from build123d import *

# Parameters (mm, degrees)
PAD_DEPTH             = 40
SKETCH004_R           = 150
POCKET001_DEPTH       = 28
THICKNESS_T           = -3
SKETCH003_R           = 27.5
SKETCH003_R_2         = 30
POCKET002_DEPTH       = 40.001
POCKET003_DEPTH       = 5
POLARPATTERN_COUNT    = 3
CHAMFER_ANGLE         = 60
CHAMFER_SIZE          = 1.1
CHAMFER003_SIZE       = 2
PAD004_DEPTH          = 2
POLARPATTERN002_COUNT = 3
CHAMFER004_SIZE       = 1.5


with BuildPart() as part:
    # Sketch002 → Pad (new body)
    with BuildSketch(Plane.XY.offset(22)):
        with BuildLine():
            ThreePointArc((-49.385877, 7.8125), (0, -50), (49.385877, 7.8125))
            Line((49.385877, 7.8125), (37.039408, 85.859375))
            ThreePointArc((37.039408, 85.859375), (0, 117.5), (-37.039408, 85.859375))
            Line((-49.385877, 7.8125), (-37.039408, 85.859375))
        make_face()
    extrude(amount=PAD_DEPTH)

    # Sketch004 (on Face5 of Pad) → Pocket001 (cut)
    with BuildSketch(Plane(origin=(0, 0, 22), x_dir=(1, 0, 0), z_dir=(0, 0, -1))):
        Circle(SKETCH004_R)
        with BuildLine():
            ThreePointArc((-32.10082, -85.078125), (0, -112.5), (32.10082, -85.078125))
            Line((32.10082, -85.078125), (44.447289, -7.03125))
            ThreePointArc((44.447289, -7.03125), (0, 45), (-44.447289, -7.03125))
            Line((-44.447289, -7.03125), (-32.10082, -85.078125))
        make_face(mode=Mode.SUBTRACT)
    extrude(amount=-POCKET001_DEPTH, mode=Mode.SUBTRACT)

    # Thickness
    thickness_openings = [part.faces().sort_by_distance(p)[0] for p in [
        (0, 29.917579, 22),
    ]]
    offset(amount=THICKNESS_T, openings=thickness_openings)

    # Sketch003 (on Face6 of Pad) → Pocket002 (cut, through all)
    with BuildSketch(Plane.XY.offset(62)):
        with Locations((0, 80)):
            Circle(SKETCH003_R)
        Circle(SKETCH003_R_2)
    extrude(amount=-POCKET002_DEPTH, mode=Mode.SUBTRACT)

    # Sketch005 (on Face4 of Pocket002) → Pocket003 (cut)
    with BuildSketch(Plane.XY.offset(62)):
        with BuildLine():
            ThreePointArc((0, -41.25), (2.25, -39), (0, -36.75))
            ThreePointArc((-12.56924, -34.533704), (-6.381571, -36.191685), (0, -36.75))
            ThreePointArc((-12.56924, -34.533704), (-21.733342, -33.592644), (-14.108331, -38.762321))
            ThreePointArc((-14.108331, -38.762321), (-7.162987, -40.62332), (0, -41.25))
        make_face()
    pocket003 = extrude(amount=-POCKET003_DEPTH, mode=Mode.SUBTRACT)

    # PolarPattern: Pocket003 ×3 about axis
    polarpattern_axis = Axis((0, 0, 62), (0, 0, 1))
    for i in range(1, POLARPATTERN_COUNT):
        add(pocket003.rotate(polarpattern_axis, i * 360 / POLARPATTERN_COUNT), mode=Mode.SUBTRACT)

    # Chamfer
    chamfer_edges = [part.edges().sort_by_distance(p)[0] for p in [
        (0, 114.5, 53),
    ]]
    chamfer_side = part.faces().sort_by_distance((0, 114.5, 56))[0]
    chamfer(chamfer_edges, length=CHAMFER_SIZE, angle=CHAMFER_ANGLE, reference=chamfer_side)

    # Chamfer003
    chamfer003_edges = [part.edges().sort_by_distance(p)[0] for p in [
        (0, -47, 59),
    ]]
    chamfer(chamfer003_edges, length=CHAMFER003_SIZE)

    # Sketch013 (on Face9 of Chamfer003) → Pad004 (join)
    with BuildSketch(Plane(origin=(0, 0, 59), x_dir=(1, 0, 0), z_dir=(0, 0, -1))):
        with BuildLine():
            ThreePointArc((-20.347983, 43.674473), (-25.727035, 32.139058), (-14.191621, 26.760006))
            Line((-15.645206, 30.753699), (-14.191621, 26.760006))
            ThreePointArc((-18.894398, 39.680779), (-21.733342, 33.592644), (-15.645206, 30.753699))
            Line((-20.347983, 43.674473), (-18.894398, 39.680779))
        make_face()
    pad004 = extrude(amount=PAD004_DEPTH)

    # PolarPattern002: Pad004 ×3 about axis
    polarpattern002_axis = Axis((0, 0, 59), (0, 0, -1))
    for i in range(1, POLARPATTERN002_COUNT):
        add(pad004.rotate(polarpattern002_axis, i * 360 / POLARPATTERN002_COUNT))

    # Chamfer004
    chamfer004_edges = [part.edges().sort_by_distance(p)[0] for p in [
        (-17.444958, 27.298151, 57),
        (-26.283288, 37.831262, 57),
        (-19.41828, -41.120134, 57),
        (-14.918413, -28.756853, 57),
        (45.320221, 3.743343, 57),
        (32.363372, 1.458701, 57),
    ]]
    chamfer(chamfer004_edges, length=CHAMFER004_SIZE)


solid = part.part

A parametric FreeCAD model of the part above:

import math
import FreeCAD as App
import Part
import Sketcher

V = App.Vector
Q = App.Units.Quantity


def edges_at(feature, points):
    """Names of the edges that pass closest to the given points."""
    edges = feature.Shape.Edges
    near = lambda p: min(range(len(edges)), key=lambda i: edges[i].distToShape(Part.Vertex(*p))[0])
    return sorted({f"Edge{near(p) + 1}" for p in points})


def faces_at(feature, points):
    """Names of the faces that lie closest to the given points."""
    faces = feature.Shape.Faces
    near = lambda p: min(range(len(faces)), key=lambda i: faces[i].distToShape(Part.Vertex(*p))[0])
    return sorted({f"Face{near(p) + 1}" for p in points})

doc = App.newDocument("Part")
body = doc.addObject("PartDesign::Body", "Body")

# Sketch on XY plane
sketch1 = body.newObject("Sketcher::SketchObject", "Sketch")
sketch1.AttachmentSupport = (doc.getObject("XY_Plane"), [""])
sketch1.MapMode = "FlatFace"
sketch1.AttachmentOffset = App.Placement(V(0, 0, 22), App.Rotation())
sketch1.addGeometry([
    Part.ArcOfCircle(Part.Circle(V(0, 0, 0), V(0, 0, 1), 50), math.radians(171), math.radians(369)),
    Part.LineSegment(V(49, 8, 0), V(37, 86, 0)),
    Part.ArcOfCircle(Part.Circle(V(0, 80, 0), V(0, 0, 1), 38), math.radians(9), math.radians(171)),
    Part.LineSegment(V(-37, 86, 0), V(-49, 8, 0)),
], False)
sketch1.addConstraint([
    Sketcher.Constraint("Tangent", 0, 2, 1, 1),
    Sketcher.Constraint("Tangent", 1, 2, 2, 1),
    Sketcher.Constraint("Tangent", 2, 2, 3, 1),
    Sketcher.Constraint("Tangent", 3, 2, 0, 1),
    Sketcher.Constraint("Coincident", 0, 3, -1, 1),
    Sketcher.Constraint("PointOnObject", 2, 3, -2),
    Sketcher.Constraint("Radius", 0, 50.0),
    Sketcher.Constraint("Radius", 2, 37.5),
    Sketcher.Constraint("DistanceY", -1, 1, 2, 3, 80.0),
])
pad1 = body.newObject("PartDesign::Pad", "Pad")
pad1.Profile = sketch1
pad1.Length = 40

# Sketch on XY plane
sketch2 = body.newObject("Sketcher::SketchObject", "Sketch001")
sketch2.AttachmentSupport = (doc.getObject("XY_Plane"), [""])
sketch2.MapMode = "FlatFace"
sketch2.AttachmentOffset = App.Placement(V(0, 0, 22), App.Rotation())
sketch2.addGeometry([
    Part.Circle(V(0, 0, 0), V(0, 0, 1), 150),  # 0
    Part.ArcOfCircle(Part.Circle(V(0, 80, 0), V(0, 0, 1), 32), math.radians(9), math.radians(171)),  # 1
    Part.LineSegment(V(-32, 85, 0), V(-44, 7, 0)),  # 2
    Part.ArcOfCircle(Part.Circle(V(0, 0, 0), V(0, 0, 1), 45), math.radians(171), math.radians(369)),  # 3
    Part.LineSegment(V(44, 7, 0), V(32, 85, 0)),  # 4
], False)
sketch2.addConstraint([
    Sketcher.Constraint("Tangent", 1, 2, 2, 1),
    Sketcher.Constraint("Tangent", 2, 2, 3, 1),
    Sketcher.Constraint("Tangent", 3, 2, 4, 1),
    Sketcher.Constraint("Tangent", 4, 2, 1, 1),
    Sketcher.Constraint("Coincident", 0, 3, -1, 1),
    Sketcher.Constraint("Coincident", 3, 3, -1, 1),
    Sketcher.Constraint("PointOnObject", 1, 3, -2),
    Sketcher.Constraint("Diameter", 0, 300.0),
    Sketcher.Constraint("Radius", 3, 45.0),
    Sketcher.Constraint("Radius", 1, 32.5),
    Sketcher.Constraint("DistanceY", -1, 1, 1, 3, 80.0),
])
pocket1 = body.newObject("PartDesign::Pocket", "Pocket")
pocket1.Profile = sketch2
pocket1.Length = 28
pocket1.Reversed = True
doc.recompute()

thickness = body.newObject("PartDesign::Thickness", "Thickness")
thickness.Base = (pocket1, faces_at(pocket1, [(0, 33.75, 22)]))
thickness.Value = 3
thickness.Reversed = True
thickness.Join = "Arc"

# Sketch on XY plane
sketch3 = body.newObject("Sketcher::SketchObject", "Sketch002")
sketch3.AttachmentSupport = (doc.getObject("XY_Plane"), [""])
sketch3.MapMode = "FlatFace"
sketch3.AttachmentOffset = App.Placement(V(0, 0, 62), App.Rotation())
sketch3.addGeometry([
    Part.Circle(V(0, 80, 0), V(0, 0, 1), 28),
    Part.Circle(V(0, 0, 0), V(0, 0, 1), 30),
], False)
sketch3.addConstraint([
    Sketcher.Constraint("Coincident", 1, 3, -1, 1),
    Sketcher.Constraint("PointOnObject", 0, 3, -2),
    Sketcher.Constraint("Diameter", 0, 55.0),
    Sketcher.Constraint("Diameter", 1, 60.0),
    Sketcher.Constraint("DistanceY", -1, 1, 0, 3, 80.0),
])
pocket2 = body.newObject("PartDesign::Pocket", "Pocket001")
pocket2.Profile = sketch3
pocket2.Type = "ThroughAll"

# Sketch on XY plane
sketch4 = body.newObject("Sketcher::SketchObject", "Sketch003")
sketch4.AttachmentSupport = (doc.getObject("XY_Plane"), [""])
sketch4.MapMode = "FlatFace"
sketch4.AttachmentOffset = App.Placement(V(0, 0, 62), App.Rotation())
sketch4.addGeometry([
    Part.ArcOfCircle(Part.Circle(V(0, -39, 0), V(0, 0, 1), 2.2), math.radians(-90), math.radians(90)),
    Part.ArcOfCircle(Part.Circle(V(0, 0, 0), V(0, 0, 1), 36.7), math.radians(-110), math.radians(-90)),
    Part.ArcOfCircle(Part.Circle(V(-17.3, -35.2, 0), V(0, 0, 1), 4.8), math.radians(8), math.radians(312)),
    Part.ArcOfCircle(Part.Circle(V(0, 0, 0), V(0, 0, 1), 41.3), math.radians(-110), math.radians(-90)),
], False)
sketch4.addConstraint([
    Sketcher.Constraint("Tangent", 0, 2, 1, 2),
    Sketcher.Constraint("Coincident", 1, 1, 2, 1),
    Sketcher.Constraint("Coincident", 2, 2, 3, 1),
    Sketcher.Constraint("Tangent", 3, 2, 0, 1),
    Sketcher.Constraint("Coincident", 1, 3, -1, 1),
    Sketcher.Constraint("Coincident", 3, 3, -1, 1),
    Sketcher.Constraint("PointOnObject", 0, 3, -2),
    Sketcher.Constraint("Radius", 0, 2.25),
    Sketcher.Constraint("Radius", 2, 4.75),
    Sketcher.Constraint("DistanceY", 0, 3, -1, 1, 39.0),
    Sketcher.Constraint("DistanceX", 2, 3, -1, 1, 17.269802),
    Sketcher.Constraint("DistanceY", 2, 3, -1, 1, 35.217239),
])
pocket3 = body.newObject("PartDesign::Pocket", "Pocket002")
pocket3.Profile = sketch4
pocket3.Length = 5
doc.recompute()

polarpattern = body.newObject("PartDesign::PolarPattern", "PolarPattern")
polarpattern.Originals = [pocket3]
polarpattern.Axis = (doc.getObject("Z_Axis"), [""])
polarpattern.Angle = 360
polarpattern.Occurrences = 3
body.Tip = polarpattern
doc.recompute()

chamfer = body.newObject("PartDesign::Chamfer", "Chamfer")
chamfer.Base = (polarpattern, edges_at(polarpattern, [(0, 114.5, 53)]))
chamfer.ChamferType = "Distance and Angle"
chamfer.Size = 1.1
chamfer.Angle = 60
doc.recompute()

chamfer2 = body.newObject("PartDesign::Chamfer", "Chamfer001")
chamfer2.Base = (chamfer, edges_at(chamfer, [(0, -47, 59)]))
chamfer2.Size = 2

# Sketch on XY plane
sketch5 = body.newObject("Sketcher::SketchObject", "Sketch004")
sketch5.AttachmentSupport = (doc.getObject("XY_Plane"), [""])
sketch5.MapMode = "FlatFace"
sketch5.AttachmentOffset = App.Placement(V(0, 0, 59), App.Rotation())
sketch5.addGeometry([
    Part.ArcOfCircle(Part.Circle(V(-17.3, -35.2, 0), V(0, 0, 1), 9), math.radians(70), math.radians(250)),
    Part.LineSegment(V(-14.2, -26.8, 0), V(-15.6, -30.8, 0)),
    Part.ArcOfCircle(Part.Circle(V(-17.3, -35.2, 0), V(0, 0, 1), 4.8), math.radians(70), math.radians(250)),
    Part.LineSegment(V(-18.9, -39.7, 0), V(-20.3, -43.7, 0)),
], False)
sketch5.addConstraint([
    Sketcher.Constraint("Coincident", 0, 1, 1, 1),
    Sketcher.Constraint("Coincident", 1, 2, 2, 1),
    Sketcher.Constraint("Coincident", 2, 2, 3, 1),
    Sketcher.Constraint("Coincident", 3, 2, 0, 2),
    Sketcher.Constraint("Coincident", 2, 3, 0, 3),
    Sketcher.Constraint("Parallel", 1, 3),
    Sketcher.Constraint("Radius", 0, 9.0),
    Sketcher.Constraint("Angle", 1, Q("-109.999995 deg")),
    Sketcher.Constraint("Radius", 2, 4.75),
    Sketcher.Constraint("DistanceX", 0, 3, -1, 1, 17.269802),
    Sketcher.Constraint("DistanceY", 1, 2, -1, 1, 30.753699),
    Sketcher.Constraint("DistanceY", 0, 3, -1, 1, 35.21724),
    Sketcher.Constraint("DistanceY", 2, 2, -1, 1, 39.680779),
])
pad2 = body.newObject("PartDesign::Pad", "Pad001")
pad2.Profile = sketch5
pad2.Length = 2
pad2.Reversed = True
doc.recompute()

polarpattern2 = body.newObject("PartDesign::PolarPattern", "PolarPattern001")
polarpattern2.Originals = [pad2]
polarpattern2.Axis = (doc.getObject("Z_Axis"), [""])
polarpattern2.Angle = 360
polarpattern2.Occurrences = 3
body.Tip = polarpattern2
doc.recompute()

chamfer3 = body.newObject("PartDesign::Chamfer", "Chamfer002")
chamfer3.Base = (polarpattern2, edges_at(polarpattern2, [
    (-17.445, 27.298, 57),
    (-26.283, 37.831, 57),
    (-19.418, -41.12, 57),
    (-14.918, -28.757, 57),
    (45.32, 3.743, 57),
    (32.363, 1.459, 57),
]))
chamfer3.Size = 1.5

doc.recompute()
